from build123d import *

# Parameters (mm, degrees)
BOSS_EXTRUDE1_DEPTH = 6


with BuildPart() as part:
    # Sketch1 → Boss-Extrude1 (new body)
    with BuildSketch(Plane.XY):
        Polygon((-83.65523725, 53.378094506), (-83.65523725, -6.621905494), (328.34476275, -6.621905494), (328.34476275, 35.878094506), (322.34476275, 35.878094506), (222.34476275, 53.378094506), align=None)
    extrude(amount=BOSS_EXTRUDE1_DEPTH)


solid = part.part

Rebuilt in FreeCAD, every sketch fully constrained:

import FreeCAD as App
import Part
import Sketcher

V = App.Vector
Q = App.Units.Quantity

doc = App.newDocument("Part")
params = doc.addObject("Spreadsheet::Sheet", "Params")
for row, (alias, value) in enumerate([
    ("sketch1_width", "412 mm"),
    ("sketch1_width2", "6 mm"),
    ("sketch1_width3", "306 mm"),
    ("sketch1_height", "60 mm"),
    ("sketch1_height2", "42.5 mm"),
    ("pad1_length", "6 mm"),
], start=1):
    params.set(f"A{row}", alias)
    params.set(f"B{row}", "=" + value)
    params.setAlias(f"B{row}", alias)

body = doc.addObject("PartDesign::Body", "Body")

sketch1 = body.newObject("Sketcher::SketchObject", "Sketch")
sketch1.AttachmentSupport = (doc.getObject("XY_Plane"), [""])
sketch1.MapMode = "FlatFace"
sketch1.addGeometry([
    Part.LineSegment(V(-84, 53, 0), V(-84, -7, 0)),
    Part.LineSegment(V(-84, -7, 0), V(328, -7, 0)),
    Part.LineSegment(V(328, -7, 0), V(328, 36, 0)),
    Part.LineSegment(V(328, 36, 0), V(322, 36, 0)),
    Part.LineSegment(V(322, 36, 0), V(222, 53, 0)),
    Part.LineSegment(V(222, 53, 0), V(-84, 53, 0)),
], False)
sketch1.addConstraint([
    Sketcher.Constraint("Coincident", 0, 2, 1, 1),
    Sketcher.Constraint("Coincident", 1, 2, 2, 1),
    Sketcher.Constraint("Coincident", 2, 2, 3, 1),
    Sketcher.Constraint("Coincident", 3, 2, 4, 1),
    Sketcher.Constraint("Coincident", 4, 2, 5, 1),
    Sketcher.Constraint("Coincident", 5, 2, 0, 1),
    Sketcher.Constraint("Vertical", 0),
    Sketcher.Constraint("Horizontal", 1),
    Sketcher.Constraint("Vertical", 2),
    Sketcher.Constraint("Horizontal", 3),
    Sketcher.Constraint("Horizontal", 5),
    Sketcher.Constraint("DistanceX", 1, 1, 1, 2, Q("412 mm")),
    Sketcher.Constraint("DistanceX", 3, 2, 3, 1, Q("6 mm")),
    Sketcher.Constraint("DistanceX", 5, 2, 5, 1, Q("306 mm")),
    Sketcher.Constraint("DistanceY", 0, 2, 0, 1, Q("60 mm")),
    Sketcher.Constraint("DistanceY", 2, 1, 2, 2, Q("42.5 mm")),
    Sketcher.Constraint("DistanceX", 0, 2, -1, 1, Q("83.655237 mm")),
    Sketcher.Constraint("DistanceY", 0, 2, -1, 1, Q("6.621905 mm")),
])
sketch1.setExpression("Constraints[11]", "Params.sketch1_width")
sketch1.setExpression("Constraints[12]", "Params.sketch1_width2")
sketch1.setExpression("Constraints[13]", "Params.sketch1_width3")
sketch1.setExpression("Constraints[14]", "Params.sketch1_height")
sketch1.setExpression("Constraints[15]", "Params.sketch1_height2")
pad1 = body.newObject("PartDesign::Pad", "Pad")
pad1.Profile = sketch1
pad1.setExpression("Length", "Params.pad1_length")

doc.recompute()
